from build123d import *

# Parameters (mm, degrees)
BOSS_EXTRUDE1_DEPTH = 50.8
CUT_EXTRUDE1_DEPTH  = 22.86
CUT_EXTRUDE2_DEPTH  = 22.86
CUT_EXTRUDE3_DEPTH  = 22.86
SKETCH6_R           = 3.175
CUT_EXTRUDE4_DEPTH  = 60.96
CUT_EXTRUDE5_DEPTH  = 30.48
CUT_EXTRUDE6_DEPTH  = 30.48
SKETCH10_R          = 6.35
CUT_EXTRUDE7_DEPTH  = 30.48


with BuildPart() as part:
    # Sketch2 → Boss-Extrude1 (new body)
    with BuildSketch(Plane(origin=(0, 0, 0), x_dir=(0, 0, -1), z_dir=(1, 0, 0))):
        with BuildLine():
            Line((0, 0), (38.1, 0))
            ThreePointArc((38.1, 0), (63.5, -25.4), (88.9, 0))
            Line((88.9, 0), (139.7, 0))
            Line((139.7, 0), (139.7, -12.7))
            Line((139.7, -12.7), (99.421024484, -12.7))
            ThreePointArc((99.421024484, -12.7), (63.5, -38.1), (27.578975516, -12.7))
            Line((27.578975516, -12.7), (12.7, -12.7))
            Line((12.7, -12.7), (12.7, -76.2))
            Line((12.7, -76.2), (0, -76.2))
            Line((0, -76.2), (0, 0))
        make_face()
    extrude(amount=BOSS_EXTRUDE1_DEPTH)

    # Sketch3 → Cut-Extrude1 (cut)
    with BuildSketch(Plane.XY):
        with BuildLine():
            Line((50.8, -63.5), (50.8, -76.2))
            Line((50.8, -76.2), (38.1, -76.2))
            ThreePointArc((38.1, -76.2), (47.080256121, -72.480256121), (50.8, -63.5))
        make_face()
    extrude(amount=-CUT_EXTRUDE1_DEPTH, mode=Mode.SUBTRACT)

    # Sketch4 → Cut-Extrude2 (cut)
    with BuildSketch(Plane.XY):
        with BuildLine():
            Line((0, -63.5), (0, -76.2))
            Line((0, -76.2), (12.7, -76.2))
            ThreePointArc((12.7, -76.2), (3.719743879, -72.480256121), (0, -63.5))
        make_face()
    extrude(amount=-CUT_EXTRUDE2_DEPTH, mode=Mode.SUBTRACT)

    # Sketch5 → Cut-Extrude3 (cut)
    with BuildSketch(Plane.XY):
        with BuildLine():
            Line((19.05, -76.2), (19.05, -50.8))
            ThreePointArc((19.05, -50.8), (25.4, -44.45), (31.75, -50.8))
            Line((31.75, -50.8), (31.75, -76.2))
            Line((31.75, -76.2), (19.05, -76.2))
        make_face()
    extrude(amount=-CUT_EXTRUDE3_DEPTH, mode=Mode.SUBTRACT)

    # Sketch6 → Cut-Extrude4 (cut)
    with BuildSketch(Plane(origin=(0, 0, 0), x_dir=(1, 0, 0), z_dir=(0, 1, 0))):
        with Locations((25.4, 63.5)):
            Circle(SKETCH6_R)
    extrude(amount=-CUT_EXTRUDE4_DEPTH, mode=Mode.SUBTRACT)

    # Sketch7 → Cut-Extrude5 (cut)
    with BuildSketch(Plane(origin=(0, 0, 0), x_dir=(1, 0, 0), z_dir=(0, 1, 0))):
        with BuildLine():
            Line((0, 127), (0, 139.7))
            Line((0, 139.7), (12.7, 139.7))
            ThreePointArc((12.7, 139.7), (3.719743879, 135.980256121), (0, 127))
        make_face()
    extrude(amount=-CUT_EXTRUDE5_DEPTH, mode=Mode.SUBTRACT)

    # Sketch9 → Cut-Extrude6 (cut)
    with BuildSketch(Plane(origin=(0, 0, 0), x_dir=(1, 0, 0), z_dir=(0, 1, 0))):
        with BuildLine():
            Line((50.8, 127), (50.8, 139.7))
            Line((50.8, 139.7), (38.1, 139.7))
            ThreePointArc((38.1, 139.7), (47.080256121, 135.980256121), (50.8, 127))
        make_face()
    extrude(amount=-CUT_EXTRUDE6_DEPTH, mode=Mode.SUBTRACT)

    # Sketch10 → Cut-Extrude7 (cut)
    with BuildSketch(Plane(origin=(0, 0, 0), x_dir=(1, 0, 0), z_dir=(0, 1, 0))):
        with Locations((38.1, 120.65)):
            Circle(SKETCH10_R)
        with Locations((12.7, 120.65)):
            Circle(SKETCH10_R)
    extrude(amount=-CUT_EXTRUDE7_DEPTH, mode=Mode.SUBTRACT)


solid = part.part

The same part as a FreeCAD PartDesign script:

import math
import FreeCAD as App
import Part
import Sketcher

V = App.Vector
Q = App.Units.Quantity

doc = App.newDocument("Part")
body = doc.addObject("PartDesign::Body", "Body")

# Sketch on YZ plane
sketch1 = body.newObject("Sketcher::SketchObject", "Sketch")
sketch1.AttachmentSupport = (doc.getObject("YZ_Plane"), [""])
sketch1.MapMode = "FlatFace"
sketch1.addGeometry(Part.LineSegment(V(0, -38.1, 0), V(0, 0, 0)), False)
sketch1.addGeometry(Part.LineSegment(V(0, 0, 0), V(-76.2, 0, 0)), False)
sketch1.addGeometry(Part.LineSegment(V(-76.2, 0, 0), V(-76.2, -12.7, 0)), False)
sketch1.addGeometry(Part.LineSegment(V(-76.2, -12.7, 0), V(-12.7, -12.7, 0)), False)
sketch1.addGeometry(Part.LineSegment(V(-12.7, -12.7, 0), V(-12.7, -27.578976, 0)), False)
sketch1.addGeometry(Part.ArcOfCircle(Part.Circle(V(0, -63.5, 0), V(0, 0, 1), 38.1), math.radians(109.471221), math.radians(250.528779)), False)
sketch1.addGeometry(Part.LineSegment(V(-12.7, -99.421024, 0), V(-12.7, -139.7, 0)), False)
sketch1.addGeometry(Part.LineSegment(V(-12.7, -139.7, 0), V(0, -139.7, 0)), False)
sketch1.addGeometry(Part.LineSegment(V(0, -139.7, 0), V(0, -88.9, 0)), False)
sketch1.addGeometry(Part.ArcOfCircle(Part.Circle(V(0, -63.5, 0), V(0, 0, 1), 25.4), math.radians(90), math.radians(270)), False)
sketch1.addConstraint(Sketcher.Constraint("Coincident", 0, 2, 1, 1))
sketch1.addConstraint(Sketcher.Constraint("Coincident", 1, 2, 2, 1))
sketch1.addConstraint(Sketcher.Constraint("Coincident", 2, 2, 3, 1))
sketch1.addConstraint(Sketcher.Constraint("Coincident", 3, 2, 4, 1))
sketch1.addConstraint(Sketcher.Constraint("Coincident", 4, 2, 5, 1))
sketch1.addConstraint(Sketcher.Constraint("Coincident", 5, 2, 6, 1))
sketch1.addConstraint(Sketcher.Constraint("Coincident", 6, 2, 7, 1))
sketch1.addConstraint(Sketcher.Constraint("Coincident", 7, 2, 8, 1))
sketch1.addConstraint(Sketcher.Constraint("Coincident", 8, 2, 9, 2))
sketch1.addConstraint(Sketcher.Constraint("Coincident", 9, 1, 0, 1))
sketch1.addConstraint(Sketcher.Constraint("Vertical", 0))
sketch1.addConstraint(Sketcher.Constraint("Horizontal", 1))
sketch1.addConstraint(Sketcher.Constraint("Vertical", 2))
sketch1.addConstraint(Sketcher.Constraint("Horizontal", 3))
sketch1.addConstraint(Sketcher.Constraint("Vertical", 4))
sketch1.addConstraint(Sketcher.Constraint("Vertical", 6))
sketch1.addConstraint(Sketcher.Constraint("Horizontal", 7))
sketch1.addConstraint(Sketcher.Constraint("Vertical", 8))
sketch1.addConstraint(Sketcher.Constraint("Coincident", 0, 2, -1, 1))
sketch1.addConstraint(Sketcher.Constraint("Coincident", 9, 3, 5, 3))
sketch1.addConstraint(Sketcher.Constraint("PointOnObject", 5, 3, -2))
sketch1.addConstraint(Sketcher.Constraint("PointOnObject", 7, 2, -2))
sketch1.addConstraint(Sketcher.Constraint("Vertical", 4, 2, 5, 2))
sketch1.addConstraint(Sketcher.Constraint("Equal", 7, 2))
sketch1.addConstraint(Sketcher.Constraint("Radius", 9, Q("1 in")))
sketch1.addConstraint(Sketcher.Constraint("Radius", 5, Q("1.5 in")))
sketch1.addConstraint(Sketcher.Constraint("DistanceX", 1, 2, 1, 1, Q("3 in")))
sketch1.addConstraint(Sketcher.Constraint("DistanceY", 8, 1, 8, 2, Q("2 in")))
sketch1.addConstraint(Sketcher.Constraint("DistanceX", 3, 1, 3, 2, Q("2.5 in")))
sketch1.addConstraint(Sketcher.Constraint("DistanceY", 0, 1, 0, 2, Q("1.5 in")))
pad1 = body.newObject("PartDesign::Pad", "Pad")
pad1.Profile = sketch1
pad1.Length = Q("2 in")

# Sketch on XY plane
sketch2 = body.newObject("Sketcher::SketchObject", "Sketch001")
sketch2.AttachmentSupport = (doc.getObject("XY_Plane"), [""])
sketch2.MapMode = "FlatFace"
sketch2.addGeometry(Part.LineSegment(V(50.8, -76.2, 0), V(50.8, -63.5, 0)), False)
sketch2.addGeometry(Part.ArcOfCircle(Part.Circle(V(38.1, -63.5, 0), V(0, 0, 1), 12.7), math.radians(-90), math.radians(0)), False)
sketch2.addGeometry(Part.LineSegment(V(38.1, -76.2, 0), V(50.8, -76.2, 0)), False)
sketch2.addConstraint(Sketcher.Constraint("Tangent", 0, 2, 1, 2))
sketch2.addConstraint(Sketcher.Constraint("Tangent", 1, 1, 2, 1))
sketch2.addConstraint(Sketcher.Constraint("Coincident", 2, 2, 0, 1))
sketch2.addConstraint(Sketcher.Constraint("Vertical", 0))
sketch2.addConstraint(Sketcher.Constraint("Horizontal", 2))
sketch2.addConstraint(Sketcher.Constraint("Radius", 1, Q("0.5 in")))
sketch2.addConstraint(Sketcher.Constraint("DistanceX", -1, 1, 0, 2, Q("2 in")))
sketch2.addConstraint(Sketcher.Constraint("DistanceY", 1, 1, -1, 1, Q("3 in")))
pocket1 = body.newObject("PartDesign::Pocket", "Pocket")
pocket1.Profile = sketch2
pocket1.Length = Q("0.9 in")

# Sketch on XY plane
sketch3 = body.newObject("Sketcher::SketchObject", "Sketch002")
sketch3.AttachmentSupport = (doc.getObject("XY_Plane"), [""])
sketch3.MapMode = "FlatFace"
sketch3.addGeometry(Part.LineSegment(V(0, -63.5, 0), V(0, -76.2, 0)), False)
sketch3.addGeometry(Part.LineSegment(V(0, -76.2, 0), V(12.7, -76.2, 0)), False)
sketch3.addGeometry(Part.ArcOfCircle(Part.Circle(V(12.7, -63.5, 0), V(0, 0, 1), 12.7), math.radians(180), math.radians(270)), False)
sketch3.addConstraint(Sketcher.Constraint("Coincident", 0, 2, 1, 1))
sketch3.addConstraint(Sketcher.Constraint("Tangent", 1, 2, 2, 2))
sketch3.addConstraint(Sketcher.Constraint("Tangent", 2, 1, 0, 1))
sketch3.addConstraint(Sketcher.Constraint("Vertical", 0))
sketch3.addConstraint(Sketcher.Constraint("Horizontal", 1))
sketch3.addConstraint(Sketcher.Constraint("PointOnObject", 0, 2, -2))
sketch3.addConstraint(Sketcher.Constraint("Radius", 2, Q("0.5 in")))
sketch3.addConstraint(Sketcher.Constraint("DistanceY", 0, 2, -1, 1, Q("3 in")))
pocket2 = body.newObject("PartDesign::Pocket", "Pocket001")
pocket2.Profile = sketch3
pocket2.Length = Q("0.9 in")

# Sketch on XY plane
sketch4 = body.newObject("Sketcher::SketchObject", "Sketch003")
sketch4.AttachmentSupport = (doc.getObject("XY_Plane"), [""])
sketch4.MapMode = "FlatFace"
sketch4.addGeometry(Part.LineSegment(V(19.05, -50.8, 0), V(19.05, -76.2, 0)), False)
sketch4.addGeometry(Part.LineSegment(V(19.05, -76.2, 0), V(31.75, -76.2, 0)), False)
sketch4.addGeometry(Part.LineSegment(V(31.75, -76.2, 0), V(31.75, -50.8, 0)), False)
sketch4.addGeometry(Part.ArcOfCircle(Part.Circle(V(25.4, -50.8, 0), V(0, 0, 1), 6.35), math.radians(0), math.radians(180)), False)
sketch4.addConstraint(Sketcher.Constraint("Coincident", 0, 2, 1, 1))
sketch4.addConstraint(Sketcher.Constraint("Coincident", 1, 2, 2, 1))
sketch4.addConstraint(Sketcher.Constraint("Tangent", 2, 2, 3, 1))
sketch4.addConstraint(Sketcher.Constraint("Tangent", 3, 2, 0, 1))
sketch4.addConstraint(Sketcher.Constraint("Vertical", 0))
sketch4.addConstraint(Sketcher.Constraint("Horizontal", 1))
sketch4.addConstraint(Sketcher.Constraint("Vertical", 2))
sketch4.addConstraint(Sketcher.Constraint("DistanceY", 0, 2, 0, 1, Q("1 in")))
sketch4.addConstraint(Sketcher.Constraint("Radius", 3, Q("0.25 in")))
sketch4.addConstraint(Sketcher.Constraint("DistanceX", -1, 1, 3, 3, Q("1 in")))
sketch4.addConstraint(Sketcher.Constraint("DistanceY", 3, 3, -1, 1, Q("2 in")))
pocket3 = body.newObject("PartDesign::Pocket", "Pocket002")
pocket3.Profile = sketch4
pocket3.Length = Q("0.9 in")

# Sketch on XZ plane
sketch5 = body.newObject("Sketcher::SketchObject", "Sketch004")
sketch5.AttachmentSupport = (doc.getObject("XZ_Plane"), [""])
sketch5.MapMode = "FlatFace"
sketch5.addGeometry(Part.Circle(V(25.4, -63.5, 0), V(0, 0, 1), 3.175), False)
sketch5.addConstraint(Sketcher.Constraint("Diameter", 0, Q("0.25 in")))
sketch5.addConstraint(Sketcher.Constraint("DistanceX", -1, 1, 0, 3, Q("1 in")))
sketch5.addConstraint(Sketcher.Constraint("DistanceY", 0, 3, -1, 1, Q("2.5 in")))
pocket4 = body.newObject("PartDesign::Pocket", "Pocket003")
pocket4.Profile = sketch5
pocket4.Length = Q("2.4 in")
pocket4.Reversed = True

# Sketch on XZ plane
sketch6 = body.newObject("Sketcher::SketchObject", "Sketch005")
sketch6.AttachmentSupport = (doc.getObject("XZ_Plane"), [""])
sketch6.MapMode = "FlatFace"
sketch6.addGeometry(Part.LineSegment(V(0, -139.7, 0), V(0, -127, 0)), False)
sketch6.addGeometry(Part.ArcOfCircle(Part.Circle(V(12.7, -127, 0), V(0, 0, 1), 12.7), math.radians(180), math.radians(270)), False)
sketch6.addGeometry(Part.LineSegment(V(12.7, -139.7, 0), V(0, -139.7, 0)), False)
sketch6.addConstraint(Sketcher.Constraint("Tangent", 0, 2, 1, 1))
sketch6.addConstraint(Sketcher.Constraint("Tangent", 1, 2, 2, 1))
sketch6.addConstraint(Sketcher.Constraint("Coincident", 2, 2, 0, 1))
sketch6.addConstraint(Sketcher.Constraint("Vertical", 0))
sketch6.addConstraint(Sketcher.Constraint("Horizontal", 2))
sketch6.addConstraint(Sketcher.Constraint("PointOnObject", 0, 2, -2))
sketch6.addConstraint(Sketcher.Constraint("Radius", 1, Q("0.5 in")))
sketch6.addConstraint(Sketcher.Constraint("DistanceY", 1, 3, -1, 1, Q("5 in")))
pocket5 = body.newObject("PartDesign::Pocket", "Pocket004")
pocket5.Profile = sketch6
pocket5.Length = Q("1.2 in")
pocket5.Reversed = True

# Sketch on XZ plane
sketch7 = body.newObject("Sketcher::SketchObject", "Sketch006")
sketch7.AttachmentSupport = (doc.getObject("XZ_Plane"), [""])
sketch7.MapMode = "FlatFace"
sketch7.addGeometry(Part.LineSegment(V(50.8, -127, 0), V(50.8, -139.7, 0)), False)
sketch7.addGeometry(Part.LineSegment(V(50.8, -139.7, 0), V(38.1, -139.7, 0)), False)
sketch7.addGeometry(Part.ArcOfCircle(Part.Circle(V(38.1, -127, 0), V(0, 0, 1), 12.7), math.radians(-90), math.radians(0)), False)
sketch7.addConstraint(Sketcher.Constraint("Coincident", 0, 2, 1, 1))
sketch7.addConstraint(Sketcher.Constraint("Tangent", 1, 2, 2, 1))
sketch7.addConstraint(Sketcher.Constraint("Tangent", 2, 2, 0, 1))
sketch7.addConstraint(Sketcher.Constraint("Vertical", 0))
sketch7.addConstraint(Sketcher.Constraint("Horizontal", 1))
sketch7.addConstraint(Sketcher.Constraint("Radius", 2, Q("0.5 in")))
sketch7.addConstraint(Sketcher.Constraint("DistanceY", 2, 3, -1, 1, Q("5 in")))
sketch7.addConstraint(Sketcher.Constraint("DistanceX", -1, 1, 0, 2, Q("2 in")))
pocket6 = body.newObject("PartDesign::Pocket", "Pocket005")
pocket6.Profile = sketch7
pocket6.Length = Q("1.2 in")
pocket6.Reversed = True

# Sketch on XZ plane
sketch8 = body.newObject("Sketcher::SketchObject", "Sketch007")
sketch8.AttachmentSupport = (doc.getObject("XZ_Plane"), [""])
sketch8.MapMode = "FlatFace"
sketch8.addGeometry(Part.Circle(V(38.1, -120.65, 0), V(0, 0, 1), 6.35), False)
sketch8.addGeometry(Part.Circle(V(12.7, -120.65, 0), V(0, 0, 1), 6.35), False)
sketch8.addConstraint(Sketcher.Constraint("Equal", 0, 1))
sketch8.addConstraint(Sketcher.Constraint("Horizontal", 0, 3, 1, 3))
sketch8.addConstraint(Sketcher.Constraint("Diameter", 0, Q("0.5 in")))
sketch8.addConstraint(Sketcher.Constraint("DistanceX", 1, 3, 0, 3, Q("1 in")))
sketch8.addConstraint(Sketcher.Constraint("DistanceX", -1, 1, 0, 3, Q("1.5 in")))
sketch8.addConstraint(Sketcher.Constraint("DistanceY", 0, 3, -1, 1, Q("4.75 in")))
pocket7 = body.newObject("PartDesign::Pocket", "Pocket006")
pocket7.Profile = sketch8
pocket7.Length = Q("1.2 in")
pocket7.Reversed = True

doc.recompute()
